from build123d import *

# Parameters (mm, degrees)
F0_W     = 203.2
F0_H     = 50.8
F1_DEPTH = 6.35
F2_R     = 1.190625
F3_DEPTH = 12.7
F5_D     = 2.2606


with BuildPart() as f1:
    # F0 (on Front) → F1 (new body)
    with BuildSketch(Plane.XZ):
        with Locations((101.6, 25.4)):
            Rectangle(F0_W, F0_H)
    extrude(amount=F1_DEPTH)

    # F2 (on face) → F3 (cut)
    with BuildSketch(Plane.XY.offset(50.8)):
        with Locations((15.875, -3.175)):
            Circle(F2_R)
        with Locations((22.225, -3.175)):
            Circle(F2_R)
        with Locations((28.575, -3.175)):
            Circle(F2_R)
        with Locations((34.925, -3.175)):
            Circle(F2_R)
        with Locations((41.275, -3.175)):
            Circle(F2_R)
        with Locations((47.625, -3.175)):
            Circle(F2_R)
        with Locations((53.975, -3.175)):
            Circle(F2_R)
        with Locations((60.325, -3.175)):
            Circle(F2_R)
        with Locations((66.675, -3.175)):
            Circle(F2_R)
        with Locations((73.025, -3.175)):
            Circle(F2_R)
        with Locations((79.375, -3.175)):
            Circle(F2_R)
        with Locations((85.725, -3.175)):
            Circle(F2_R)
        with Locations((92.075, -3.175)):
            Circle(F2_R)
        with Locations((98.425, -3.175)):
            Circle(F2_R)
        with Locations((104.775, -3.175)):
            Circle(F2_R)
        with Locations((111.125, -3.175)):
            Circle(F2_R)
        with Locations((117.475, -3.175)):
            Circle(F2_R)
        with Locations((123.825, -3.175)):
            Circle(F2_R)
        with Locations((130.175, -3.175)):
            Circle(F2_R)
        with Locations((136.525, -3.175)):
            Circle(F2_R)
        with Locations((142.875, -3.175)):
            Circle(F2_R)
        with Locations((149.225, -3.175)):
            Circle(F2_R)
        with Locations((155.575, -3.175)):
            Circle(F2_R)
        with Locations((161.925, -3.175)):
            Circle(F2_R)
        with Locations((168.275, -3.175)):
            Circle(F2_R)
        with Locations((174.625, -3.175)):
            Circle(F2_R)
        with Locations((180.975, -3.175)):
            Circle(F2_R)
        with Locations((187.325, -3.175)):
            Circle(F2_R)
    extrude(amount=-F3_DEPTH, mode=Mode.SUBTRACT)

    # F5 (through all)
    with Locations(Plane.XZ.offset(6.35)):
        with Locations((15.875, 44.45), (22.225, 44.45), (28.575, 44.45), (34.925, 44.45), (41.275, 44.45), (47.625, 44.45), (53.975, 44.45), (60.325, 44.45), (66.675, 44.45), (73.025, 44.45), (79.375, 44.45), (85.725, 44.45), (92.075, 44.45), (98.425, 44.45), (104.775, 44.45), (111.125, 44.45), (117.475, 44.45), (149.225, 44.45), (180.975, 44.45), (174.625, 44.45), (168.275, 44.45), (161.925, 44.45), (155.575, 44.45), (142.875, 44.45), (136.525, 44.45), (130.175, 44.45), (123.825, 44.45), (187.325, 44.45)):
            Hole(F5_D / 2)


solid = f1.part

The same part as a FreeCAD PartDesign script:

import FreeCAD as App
import Part
import Sketcher
from FreeCAD import Vector
Q = App.Units.Quantity

doc = App.newDocument("Part")
body = doc.addObject("PartDesign::Body", "Body")

# Sketch on XZ plane
sketch1 = body.newObject("Sketcher::SketchObject", "Sketch")
sketch1.AttachmentSupport = (doc.getObject("XZ_Plane"), [""])
sketch1.MapMode = "FlatFace"
sketch1.addGeometry([
    Part.LineSegment(Vector(0, 51, 0), Vector(0, 0, 0)),
    Part.LineSegment(Vector(0, 0, 0), Vector(203, 0, 0)),
    Part.LineSegment(Vector(203, 0, 0), Vector(203, 51, 0)),
    Part.LineSegment(Vector(203, 51, 0), Vector(0, 51, 0)),
], False)
sketch1.addConstraint([
    Sketcher.Constraint("Coincident", 0, 2, 1, 1),
    Sketcher.Constraint("Coincident", 1, 2, 2, 1),
    Sketcher.Constraint("Coincident", 2, 2, 3, 1),
    Sketcher.Constraint("Coincident", 3, 2, 0, 1),
    Sketcher.Constraint("Vertical", 0),
    Sketcher.Constraint("Horizontal", 1),
    Sketcher.Constraint("Vertical", 2),
    Sketcher.Constraint("Horizontal", 3),
    Sketcher.Constraint("Coincident", 0, 2, -1, 1),
    Sketcher.Constraint("DistanceX", 1, 1, 1, 2, Q("8 in")),
    Sketcher.Constraint("DistanceY", 0, 2, 0, 1, Q("2 in")),
])
pad1 = body.newObject("PartDesign::Pad", "Pad")
pad1.Profile = sketch1
pad1.Length = Q("0.25 in")

# Sketch on XY plane
sketch2 = body.newObject("Sketcher::SketchObject", "Sketch001")
sketch2.AttachmentSupport = (doc.getObject("XY_Plane"), [""])
sketch2.MapMode = "FlatFace"
sketch2.AttachmentOffset = App.Placement(Vector(0, 0, 2 * 25.4), App.Rotation())
sketch2.addGeometry([
    Part.Circle(Vector(15.9, -3.2, 0), Vector(0, 0, 1), 1.2),  # 0
    Part.Circle(Vector(22.2, -3.2, 0), Vector(0, 0, 1), 1.2),  # 1
    Part.Circle(Vector(28.6, -3.2, 0), Vector(0, 0, 1), 1.2),  # 2
    Part.Circle(Vector(34.9, -3.2, 0), Vector(0, 0, 1), 1.2),  # 3
    Part.Circle(Vector(41.3, -3.2, 0), Vector(0, 0, 1), 1.2),  # 4
    Part.Circle(Vector(47.6, -3.2, 0), Vector(0, 0, 1), 1.2),  # 5
    Part.Circle(Vector(54, -3.2, 0), Vector(0, 0, 1), 1.2),  # 6
    Part.Circle(Vector(60.3, -3.2, 0), Vector(0, 0, 1), 1.2),  # 7
    Part.Circle(Vector(66.7, -3.2, 0), Vector(0, 0, 1), 1.2),  # 8
    Part.Circle(Vector(73, -3.2, 0), Vector(0, 0, 1), 1.2),  # 9
    Part.Circle(Vector(79.4, -3.2, 0), Vector(0, 0, 1), 1.2),  # 10
    Part.Circle(Vector(85.7, -3.2, 0), Vector(0, 0, 1), 1.2),  # 11
    Part.Circle(Vector(92.1, -3.2, 0), Vector(0, 0, 1), 1.2),  # 12
    Part.Circle(Vector(98.4, -3.2, 0), Vector(0, 0, 1), 1.2),  # 13
    Part.Circle(Vector(104.8, -3.2, 0), Vector(0, 0, 1), 1.2),  # 14
    Part.Circle(Vector(111.1, -3.2, 0), Vector(0, 0, 1), 1.2),  # 15
    Part.Circle(Vector(117.5, -3.2, 0), Vector(0, 0, 1), 1.2),  # 16
    Part.Circle(Vector(123.8, -3.2, 0), Vector(0, 0, 1), 1.2),  # 17
    Part.Circle(Vector(130.2, -3.2, 0), Vector(0, 0, 1), 1.2),  # 18
    Part.Circle(Vector(136.5, -3.2, 0), Vector(0, 0, 1), 1.2),  # 19
    Part.Circle(Vector(142.9, -3.2, 0), Vector(0, 0, 1), 1.2),  # 20
    Part.Circle(Vector(149.2, -3.2, 0), Vector(0, 0, 1), 1.2),  # 21
    Part.Circle(Vector(155.6, -3.2, 0), Vector(0, 0, 1), 1.2),  # 22
    Part.Circle(Vector(161.9, -3.2, 0), Vector(0, 0, 1), 1.2),  # 23
    Part.Circle(Vector(168.3, -3.2, 0), Vector(0, 0, 1), 1.2),  # 24
    Part.Circle(Vector(174.6, -3.2, 0), Vector(0, 0, 1), 1.2),  # 25
    Part.Circle(Vector(181, -3.2, 0), Vector(0, 0, 1), 1.2),  # 26
    Part.Circle(Vector(187.3, -3.2, 0), Vector(0, 0, 1), 1.2),  # 27
], False)
sketch2.addConstraint([
    Sketcher.Constraint("Equal", 0, 1),
    Sketcher.Constraint("Equal", 1, 2),
    Sketcher.Constraint("Equal", 2, 3),
    Sketcher.Constraint("Equal", 3, 4),
    Sketcher.Constraint("Equal", 4, 5),
    Sketcher.Constraint("Equal", 5, 6),
    Sketcher.Constraint("Equal", 6, 7),
    Sketcher.Constraint("Equal", 7, 8),
    Sketcher.Constraint("Equal", 8, 9),
    Sketcher.Constraint("Equal", 9, 10),
    Sketcher.Constraint("Equal", 10, 11),
    Sketcher.Constraint("Equal", 11, 12),
    Sketcher.Constraint("Equal", 12, 13),
    Sketcher.Constraint("Equal", 13, 14),
    Sketcher.Constraint("Equal", 14, 15),
    Sketcher.Constraint("Equal", 15, 16),
    Sketcher.Constraint("Equal", 16, 17),
    Sketcher.Constraint("Equal", 17, 18),
    Sketcher.Constraint("Equal", 18, 19),
    Sketcher.Constraint("Equal", 19, 20),
    Sketcher.Constraint("Equal", 20, 21),
    Sketcher.Constraint("Equal", 21, 22),
    Sketcher.Constraint("Equal", 22, 23),
    Sketcher.Constraint("Equal", 23, 24),
    Sketcher.Constraint("Equal", 24, 25),
    Sketcher.Constraint("Equal", 25, 26),
    Sketcher.Constraint("Equal", 26, 27),
    Sketcher.Constraint("Horizontal", 0, 3, 1, 3),
    Sketcher.Constraint("Horizontal", 1, 3, 2, 3),
    Sketcher.Constraint("Horizontal", 2, 3, 3, 3),
    Sketcher.Constraint("Horizontal", 3, 3, 4, 3),
    Sketcher.Constraint("Horizontal", 4, 3, 5, 3),
    Sketcher.Constraint("Horizontal", 5, 3, 6, 3),
    Sketcher.Constraint("Horizontal", 6, 3, 7, 3),
    Sketcher.Constraint("Horizontal", 7, 3, 8, 3),
    Sketcher.Constraint("Horizontal", 8, 3, 9, 3),
    Sketcher.Constraint("Horizontal", 9, 3, 10, 3),
    Sketcher.Constraint("Horizontal", 10, 3, 11, 3),
    Sketcher.Constraint("Horizontal", 11, 3, 12, 3),
    Sketcher.Constraint("Horizontal", 12, 3, 13, 3),
    Sketcher.Constraint("Horizontal", 13, 3, 14, 3),
    Sketcher.Constraint("Horizontal", 14, 3, 15, 3),
    Sketcher.Constraint("Horizontal", 15, 3, 16, 3),
    Sketcher.Constraint("Horizontal", 16, 3, 17, 3),
    Sketcher.Constraint("Horizontal", 17, 3, 18, 3),
    Sketcher.Constraint("Horizontal", 18, 3, 19, 3),
    Sketcher.Constraint("Horizontal", 19, 3, 20, 3),
    Sketcher.Constraint("Horizontal", 20, 3, 21, 3),
    Sketcher.Constraint("Horizontal", 21, 3, 22, 3),
    Sketcher.Constraint("Horizontal", 22, 3, 23, 3),
    Sketcher.Constraint("Horizontal", 23, 3, 24, 3),
    Sketcher.Constraint("Horizontal", 24, 3, 25, 3),
    Sketcher.Constraint("Horizontal", 25, 3, 26, 3),
    Sketcher.Constraint("Horizontal", 26, 3, 27, 3),
    Sketcher.Constraint("Diameter", 0, Q("0.09375 in")),
    Sketcher.Constraint("DistanceX", 0, 3, 4, 3, Q("1 in")),
    Sketcher.Constraint("DistanceX", 1, 3, 5, 3, Q("1 in")),
    Sketcher.Constraint("DistanceX", 2, 3, 6, 3, Q("1 in")),
    Sketcher.Constraint("DistanceX", 3, 3, 7, 3, Q("1 in")),
    Sketcher.Constraint("DistanceX", 4, 3, 8, 3, Q("1 in")),
    Sketcher.Constraint("DistanceX", 5, 3, 9, 3, Q("1 in")),
    Sketcher.Constraint("DistanceX", 6, 3, 10, 3, Q("1 in")),
    Sketcher.Constraint("DistanceX", 7, 3, 11, 3, Q("1 in")),
    Sketcher.Constraint("DistanceX", 8, 3, 12, 3, Q("1 in")),
    Sketcher.Constraint("DistanceX", 9, 3, 13, 3, Q("1 in")),
    Sketcher.Constraint("DistanceX", 10, 3, 14, 3, Q("1 in")),
    Sketcher.Constraint("DistanceX", 11, 3, 15, 3, Q("1 in")),
    Sketcher.Constraint("DistanceX", 12, 3, 16, 3, Q("1 in")),
    Sketcher.Constraint("DistanceX", 13, 3, 17, 3, Q("1 in")),
    Sketcher.Constraint("DistanceX", 14, 3, 18, 3, Q("1 in")),
    Sketcher.Constraint("DistanceX", 15, 3, 19, 3, Q("1 in")),
    Sketcher.Constraint("DistanceX", 16, 3, 20, 3, Q("1 in")),
    Sketcher.Constraint("DistanceX", 17, 3, 21, 3, Q("1 in")),
    Sketcher.Constraint("DistanceX", 18, 3, 22, 3, Q("1 in")),
    Sketcher.Constraint("DistanceX", 19, 3, 23, 3, Q("1 in")),
    Sketcher.Constraint("DistanceX", 20, 3, 24, 3, Q("1 in")),
    Sketcher.Constraint("DistanceX", 21, 3, 25, 3, Q("1 in")),
    Sketcher.Constraint("DistanceX", 22, 3, 26, 3, Q("1 in")),
    Sketcher.Constraint("DistanceX", 23, 3, 27, 3, Q("1 in")),
    Sketcher.Constraint("DistanceX", 0, 3, 2, 3, Q("0.5 in")),
    Sketcher.Constraint("DistanceX", 1, 3, 3, 3, Q("0.5 in")),
    Sketcher.Constraint("DistanceX", 0, 3, 1, 3, Q("0.25 in")),
    Sketcher.Constraint("DistanceX", -1, 1, 0, 3, Q("0.625 in")),
    Sketcher.Constraint("DistanceY", 0, 3, -1, 1, Q("0.125 in")),
])
pocket1 = body.newObject("PartDesign::Pocket", "Pocket")
pocket1.Profile = sketch2
pocket1.Length = Q("0.5 in")

# Sketch on XZ plane
sketch3 = body.newObject("Sketcher::SketchObject", "Sketch002")
sketch3.AttachmentSupport = (doc.getObject("XZ_Plane"), [""])
sketch3.MapMode = "FlatFace"
sketch3.AttachmentOffset = App.Placement(Vector(0, 0, 0.25 * 25.4), App.Rotation())
sketch3.addGeometry([
    Part.Circle(Vector(15.9, 44.5, 0), Vector(0, 0, 1), 1.1),  # 0
    Part.Circle(Vector(22.2, 44.5, 0), Vector(0, 0, 1), 1.1),  # 1
    Part.Circle(Vector(28.6, 44.5, 0), Vector(0, 0, 1), 1.1),  # 2
    Part.Circle(Vector(34.9, 44.5, 0), Vector(0, 0, 1), 1.1),  # 3
    Part.Circle(Vector(41.3, 44.5, 0), Vector(0, 0, 1), 1.1),  # 4
    Part.Circle(Vector(47.6, 44.5, 0), Vector(0, 0, 1), 1.1),  # 5
    Part.Circle(Vector(54, 44.5, 0), Vector(0, 0, 1), 1.1),  # 6
    Part.Circle(Vector(60.3, 44.5, 0), Vector(0, 0, 1), 1.1),  # 7
    Part.Circle(Vector(66.7, 44.5, 0), Vector(0, 0, 1), 1.1),  # 8
    Part.Circle(Vector(73, 44.5, 0), Vector(0, 0, 1), 1.1),  # 9
    Part.Circle(Vector(79.4, 44.5, 0), Vector(0, 0, 1), 1.1),  # 10
    Part.Circle(Vector(85.7, 44.5, 0), Vector(0, 0, 1), 1.1),  # 11
    Part.Circle(Vector(92.1, 44.5, 0), Vector(0, 0, 1), 1.1),  # 12
    Part.Circle(Vector(98.4, 44.5, 0), Vector(0, 0, 1), 1.1),  # 13
    Part.Circle(Vector(104.8, 44.5, 0), Vector(0, 0, 1), 1.1),  # 14
    Part.Circle(Vector(111.1, 44.5, 0), Vector(0, 0, 1), 1.1),  # 15
    Part.Circle(Vector(117.5, 44.5, 0), Vector(0, 0, 1), 1.1),  # 16
    Part.Circle(Vector(149.2, 44.5, 0), Vector(0, 0, 1), 1.1),  # 17
    Part.Circle(Vector(181, 44.5, 0), Vector(0, 0, 1), 1.1),  # 18
    Part.Circle(Vector(174.6, 44.5, 0), Vector(0, 0, 1), 1.1),  # 19
    Part.Circle(Vector(168.3, 44.5, 0), Vector(0, 0, 1), 1.1),  # 20
    Part.Circle(Vector(161.9, 44.5, 0), Vector(0, 0, 1), 1.1),  # 21
    Part.Circle(Vector(155.6, 44.5, 0), Vector(0, 0, 1), 1.1),  # 22
    Part.Circle(Vector(142.9, 44.5, 0), Vector(0, 0, 1), 1.1),  # 23
    Part.Circle(Vector(136.5, 44.5, 0), Vector(0, 0, 1), 1.1),  # 24
    Part.Circle(Vector(130.2, 44.5, 0), Vector(0, 0, 1), 1.1),  # 25
    Part.Circle(Vector(123.8, 44.5, 0), Vector(0, 0, 1), 1.1),  # 26
    Part.Circle(Vector(187.3, 44.5, 0), Vector(0, 0, 1), 1.1),  # 27
], False)
sketch3.addConstraint([
    Sketcher.Constraint("Equal", 0, 1),
    Sketcher.Constraint("Equal", 1, 2),
    Sketcher.Constraint("Equal", 2, 3),
    Sketcher.Constraint("Equal", 3, 4),
    Sketcher.Constraint("Equal", 4, 5),
    Sketcher.Constraint("Equal", 5, 6),
    Sketcher.Constraint("Equal", 6, 7),
    Sketcher.Constraint("Equal", 7, 8),
    Sketcher.Constraint("Equal", 8, 9),
    Sketcher.Constraint("Equal", 9, 10),
    Sketcher.Constraint("Equal", 10, 11),
    Sketcher.Constraint("Equal", 11, 12),
    Sketcher.Constraint("Equal", 12, 13),
    Sketcher.Constraint("Equal", 13, 14),
    Sketcher.Constraint("Equal", 14, 15),
    Sketcher.Constraint("Equal", 15, 16),
    Sketcher.Constraint("Equal", 16, 17),
    Sketcher.Constraint("Equal", 17, 18),
    Sketcher.Constraint("Equal", 18, 19),
    Sketcher.Constraint("Equal", 19, 20),
    Sketcher.Constraint("Equal", 20, 21),
    Sketcher.Constraint("Equal", 21, 22),
    Sketcher.Constraint("Equal", 22, 23),
    Sketcher.Constraint("Equal", 23, 24),
    Sketcher.Constraint("Equal", 24, 25),
    Sketcher.Constraint("Equal", 25, 26),
    Sketcher.Constraint("Equal", 26, 27),
    Sketcher.Constraint("Horizontal", 0, 3, 1, 3),
    Sketcher.Constraint("Horizontal", 1, 3, 2, 3),
    Sketcher.Constraint("Horizontal", 2, 3, 3, 3),
    Sketcher.Constraint("Horizontal", 3, 3, 4, 3),
    Sketcher.Constraint("Horizontal", 4, 3, 5, 3),
    Sketcher.Constraint("Horizontal", 5, 3, 6, 3),
    Sketcher.Constraint("Horizontal", 6, 3, 7, 3),
    Sketcher.Constraint("Horizontal", 7, 3, 8, 3),
    Sketcher.Constraint("Horizontal", 8, 3, 9, 3),
    Sketcher.Constraint("Horizontal", 9, 3, 10, 3),
    Sketcher.Constraint("Horizontal", 10, 3, 11, 3),
    Sketcher.Constraint("Horizontal", 11, 3, 12, 3),
    Sketcher.Constraint("Horizontal", 12, 3, 13, 3),
    Sketcher.Constraint("Horizontal", 13, 3, 14, 3),
    Sketcher.Constraint("Horizontal", 14, 3, 15, 3),
    Sketcher.Constraint("Horizontal", 15, 3, 16, 3),
    Sketcher.Constraint("Horizontal", 16, 3, 17, 3),
    Sketcher.Constraint("Horizontal", 17, 3, 18, 3),
    Sketcher.Constraint("Horizontal", 18, 3, 19, 3),
    Sketcher.Constraint("Horizontal", 19, 3, 20, 3),
    Sketcher.Constraint("Horizontal", 20, 3, 21, 3),
    Sketcher.Constraint("Horizontal", 21, 3, 22, 3),
    Sketcher.Constraint("Horizontal", 22, 3, 23, 3),
    Sketcher.Constraint("Horizontal", 23, 3, 24, 3),
    Sketcher.Constraint("Horizontal", 24, 3, 25, 3),
    Sketcher.Constraint("Horizontal", 25, 3, 26, 3),
    Sketcher.Constraint("Horizontal", 26, 3, 27, 3),
    Sketcher.Constraint("Diameter", 0, Q("0.089 in")),
    Sketcher.Constraint("DistanceX", 0, 3, 4, 3, Q("1 in")),
    Sketcher.Constraint("DistanceX", 1, 3, 5, 3, Q("1 in")),
    Sketcher.Constraint("DistanceX", 2, 3, 6, 3, Q("1 in")),
    Sketcher.Constraint("DistanceX", 3, 3, 7, 3, Q("1 in")),
    Sketcher.Constraint("DistanceX", 4, 3, 8, 3, Q("1 in")),
    Sketcher.Constraint("DistanceX", 5, 3, 9, 3, Q("1 in")),
    Sketcher.Constraint("DistanceX", 6, 3, 10, 3, Q("1 in")),
    Sketcher.Constraint("DistanceX", 7, 3, 11, 3, Q("1 in")),
    Sketcher.Constraint("DistanceX", 8, 3, 12, 3, Q("1 in")),
    Sketcher.Constraint("DistanceX", 9, 3, 13, 3, Q("1 in")),
    Sketcher.Constraint("DistanceX", 10, 3, 14, 3, Q("1 in")),
    Sketcher.Constraint("DistanceX", 11, 3, 15, 3, Q("1 in")),
    Sketcher.Constraint("DistanceX", 12, 3, 16, 3, Q("1 in")),
    Sketcher.Constraint("DistanceX", 13, 3, 17, 3, Q("2 in")),
    Sketcher.Constraint("DistanceX", 14, 3, 18, 3, Q("3 in")),
    Sketcher.Constraint("DistanceX", 17, 3, 19, 3, Q("1 in")),
    Sketcher.Constraint("DistanceX", 16, 3, 20, 3, Q("2 in")),
    Sketcher.Constraint("DistanceX", 22, 3, 18, 3, Q("1 in")),
    Sketcher.Constraint("DistanceX", 16, 3, 23, 3, Q("1 in")),
    Sketcher.Constraint("DistanceX", 15, 3, 24, 3, Q("1 in")),
    Sketcher.Constraint("DistanceX", 21, 3, 27, 3, Q("1 in")),
    Sketcher.Constraint("DistanceX", 0, 3, 2, 3, Q("0.5 in")),
    Sketcher.Constraint("DistanceX", 1, 3, 3, 3, Q("0.5 in")),
    Sketcher.Constraint("DistanceX", 21, 3, 19, 3, Q("0.5 in")),
    Sketcher.Constraint("DistanceX", 25, 3, 23, 3, Q("0.5 in")),
    Sketcher.Constraint("DistanceX", 15, 3, 26, 3, Q("0.5 in")),
    Sketcher.Constraint("DistanceY", -1, 1, 0, 3, Q("1.75 in")),
    Sketcher.Constraint("DistanceX", 0, 3, 1, 3, Q("0.25 in")),
    Sketcher.Constraint("DistanceX", -1, 1, 0, 3, Q("0.625 in")),
])
doc.recompute()
hole = body.newObject("PartDesign::Hole", "Hole")
hole.Profile = sketch3
hole.ThreadType = "None"
hole.Diameter = Q("0.089 in")
hole.DepthType = "ThroughAll"

doc.recompute()
